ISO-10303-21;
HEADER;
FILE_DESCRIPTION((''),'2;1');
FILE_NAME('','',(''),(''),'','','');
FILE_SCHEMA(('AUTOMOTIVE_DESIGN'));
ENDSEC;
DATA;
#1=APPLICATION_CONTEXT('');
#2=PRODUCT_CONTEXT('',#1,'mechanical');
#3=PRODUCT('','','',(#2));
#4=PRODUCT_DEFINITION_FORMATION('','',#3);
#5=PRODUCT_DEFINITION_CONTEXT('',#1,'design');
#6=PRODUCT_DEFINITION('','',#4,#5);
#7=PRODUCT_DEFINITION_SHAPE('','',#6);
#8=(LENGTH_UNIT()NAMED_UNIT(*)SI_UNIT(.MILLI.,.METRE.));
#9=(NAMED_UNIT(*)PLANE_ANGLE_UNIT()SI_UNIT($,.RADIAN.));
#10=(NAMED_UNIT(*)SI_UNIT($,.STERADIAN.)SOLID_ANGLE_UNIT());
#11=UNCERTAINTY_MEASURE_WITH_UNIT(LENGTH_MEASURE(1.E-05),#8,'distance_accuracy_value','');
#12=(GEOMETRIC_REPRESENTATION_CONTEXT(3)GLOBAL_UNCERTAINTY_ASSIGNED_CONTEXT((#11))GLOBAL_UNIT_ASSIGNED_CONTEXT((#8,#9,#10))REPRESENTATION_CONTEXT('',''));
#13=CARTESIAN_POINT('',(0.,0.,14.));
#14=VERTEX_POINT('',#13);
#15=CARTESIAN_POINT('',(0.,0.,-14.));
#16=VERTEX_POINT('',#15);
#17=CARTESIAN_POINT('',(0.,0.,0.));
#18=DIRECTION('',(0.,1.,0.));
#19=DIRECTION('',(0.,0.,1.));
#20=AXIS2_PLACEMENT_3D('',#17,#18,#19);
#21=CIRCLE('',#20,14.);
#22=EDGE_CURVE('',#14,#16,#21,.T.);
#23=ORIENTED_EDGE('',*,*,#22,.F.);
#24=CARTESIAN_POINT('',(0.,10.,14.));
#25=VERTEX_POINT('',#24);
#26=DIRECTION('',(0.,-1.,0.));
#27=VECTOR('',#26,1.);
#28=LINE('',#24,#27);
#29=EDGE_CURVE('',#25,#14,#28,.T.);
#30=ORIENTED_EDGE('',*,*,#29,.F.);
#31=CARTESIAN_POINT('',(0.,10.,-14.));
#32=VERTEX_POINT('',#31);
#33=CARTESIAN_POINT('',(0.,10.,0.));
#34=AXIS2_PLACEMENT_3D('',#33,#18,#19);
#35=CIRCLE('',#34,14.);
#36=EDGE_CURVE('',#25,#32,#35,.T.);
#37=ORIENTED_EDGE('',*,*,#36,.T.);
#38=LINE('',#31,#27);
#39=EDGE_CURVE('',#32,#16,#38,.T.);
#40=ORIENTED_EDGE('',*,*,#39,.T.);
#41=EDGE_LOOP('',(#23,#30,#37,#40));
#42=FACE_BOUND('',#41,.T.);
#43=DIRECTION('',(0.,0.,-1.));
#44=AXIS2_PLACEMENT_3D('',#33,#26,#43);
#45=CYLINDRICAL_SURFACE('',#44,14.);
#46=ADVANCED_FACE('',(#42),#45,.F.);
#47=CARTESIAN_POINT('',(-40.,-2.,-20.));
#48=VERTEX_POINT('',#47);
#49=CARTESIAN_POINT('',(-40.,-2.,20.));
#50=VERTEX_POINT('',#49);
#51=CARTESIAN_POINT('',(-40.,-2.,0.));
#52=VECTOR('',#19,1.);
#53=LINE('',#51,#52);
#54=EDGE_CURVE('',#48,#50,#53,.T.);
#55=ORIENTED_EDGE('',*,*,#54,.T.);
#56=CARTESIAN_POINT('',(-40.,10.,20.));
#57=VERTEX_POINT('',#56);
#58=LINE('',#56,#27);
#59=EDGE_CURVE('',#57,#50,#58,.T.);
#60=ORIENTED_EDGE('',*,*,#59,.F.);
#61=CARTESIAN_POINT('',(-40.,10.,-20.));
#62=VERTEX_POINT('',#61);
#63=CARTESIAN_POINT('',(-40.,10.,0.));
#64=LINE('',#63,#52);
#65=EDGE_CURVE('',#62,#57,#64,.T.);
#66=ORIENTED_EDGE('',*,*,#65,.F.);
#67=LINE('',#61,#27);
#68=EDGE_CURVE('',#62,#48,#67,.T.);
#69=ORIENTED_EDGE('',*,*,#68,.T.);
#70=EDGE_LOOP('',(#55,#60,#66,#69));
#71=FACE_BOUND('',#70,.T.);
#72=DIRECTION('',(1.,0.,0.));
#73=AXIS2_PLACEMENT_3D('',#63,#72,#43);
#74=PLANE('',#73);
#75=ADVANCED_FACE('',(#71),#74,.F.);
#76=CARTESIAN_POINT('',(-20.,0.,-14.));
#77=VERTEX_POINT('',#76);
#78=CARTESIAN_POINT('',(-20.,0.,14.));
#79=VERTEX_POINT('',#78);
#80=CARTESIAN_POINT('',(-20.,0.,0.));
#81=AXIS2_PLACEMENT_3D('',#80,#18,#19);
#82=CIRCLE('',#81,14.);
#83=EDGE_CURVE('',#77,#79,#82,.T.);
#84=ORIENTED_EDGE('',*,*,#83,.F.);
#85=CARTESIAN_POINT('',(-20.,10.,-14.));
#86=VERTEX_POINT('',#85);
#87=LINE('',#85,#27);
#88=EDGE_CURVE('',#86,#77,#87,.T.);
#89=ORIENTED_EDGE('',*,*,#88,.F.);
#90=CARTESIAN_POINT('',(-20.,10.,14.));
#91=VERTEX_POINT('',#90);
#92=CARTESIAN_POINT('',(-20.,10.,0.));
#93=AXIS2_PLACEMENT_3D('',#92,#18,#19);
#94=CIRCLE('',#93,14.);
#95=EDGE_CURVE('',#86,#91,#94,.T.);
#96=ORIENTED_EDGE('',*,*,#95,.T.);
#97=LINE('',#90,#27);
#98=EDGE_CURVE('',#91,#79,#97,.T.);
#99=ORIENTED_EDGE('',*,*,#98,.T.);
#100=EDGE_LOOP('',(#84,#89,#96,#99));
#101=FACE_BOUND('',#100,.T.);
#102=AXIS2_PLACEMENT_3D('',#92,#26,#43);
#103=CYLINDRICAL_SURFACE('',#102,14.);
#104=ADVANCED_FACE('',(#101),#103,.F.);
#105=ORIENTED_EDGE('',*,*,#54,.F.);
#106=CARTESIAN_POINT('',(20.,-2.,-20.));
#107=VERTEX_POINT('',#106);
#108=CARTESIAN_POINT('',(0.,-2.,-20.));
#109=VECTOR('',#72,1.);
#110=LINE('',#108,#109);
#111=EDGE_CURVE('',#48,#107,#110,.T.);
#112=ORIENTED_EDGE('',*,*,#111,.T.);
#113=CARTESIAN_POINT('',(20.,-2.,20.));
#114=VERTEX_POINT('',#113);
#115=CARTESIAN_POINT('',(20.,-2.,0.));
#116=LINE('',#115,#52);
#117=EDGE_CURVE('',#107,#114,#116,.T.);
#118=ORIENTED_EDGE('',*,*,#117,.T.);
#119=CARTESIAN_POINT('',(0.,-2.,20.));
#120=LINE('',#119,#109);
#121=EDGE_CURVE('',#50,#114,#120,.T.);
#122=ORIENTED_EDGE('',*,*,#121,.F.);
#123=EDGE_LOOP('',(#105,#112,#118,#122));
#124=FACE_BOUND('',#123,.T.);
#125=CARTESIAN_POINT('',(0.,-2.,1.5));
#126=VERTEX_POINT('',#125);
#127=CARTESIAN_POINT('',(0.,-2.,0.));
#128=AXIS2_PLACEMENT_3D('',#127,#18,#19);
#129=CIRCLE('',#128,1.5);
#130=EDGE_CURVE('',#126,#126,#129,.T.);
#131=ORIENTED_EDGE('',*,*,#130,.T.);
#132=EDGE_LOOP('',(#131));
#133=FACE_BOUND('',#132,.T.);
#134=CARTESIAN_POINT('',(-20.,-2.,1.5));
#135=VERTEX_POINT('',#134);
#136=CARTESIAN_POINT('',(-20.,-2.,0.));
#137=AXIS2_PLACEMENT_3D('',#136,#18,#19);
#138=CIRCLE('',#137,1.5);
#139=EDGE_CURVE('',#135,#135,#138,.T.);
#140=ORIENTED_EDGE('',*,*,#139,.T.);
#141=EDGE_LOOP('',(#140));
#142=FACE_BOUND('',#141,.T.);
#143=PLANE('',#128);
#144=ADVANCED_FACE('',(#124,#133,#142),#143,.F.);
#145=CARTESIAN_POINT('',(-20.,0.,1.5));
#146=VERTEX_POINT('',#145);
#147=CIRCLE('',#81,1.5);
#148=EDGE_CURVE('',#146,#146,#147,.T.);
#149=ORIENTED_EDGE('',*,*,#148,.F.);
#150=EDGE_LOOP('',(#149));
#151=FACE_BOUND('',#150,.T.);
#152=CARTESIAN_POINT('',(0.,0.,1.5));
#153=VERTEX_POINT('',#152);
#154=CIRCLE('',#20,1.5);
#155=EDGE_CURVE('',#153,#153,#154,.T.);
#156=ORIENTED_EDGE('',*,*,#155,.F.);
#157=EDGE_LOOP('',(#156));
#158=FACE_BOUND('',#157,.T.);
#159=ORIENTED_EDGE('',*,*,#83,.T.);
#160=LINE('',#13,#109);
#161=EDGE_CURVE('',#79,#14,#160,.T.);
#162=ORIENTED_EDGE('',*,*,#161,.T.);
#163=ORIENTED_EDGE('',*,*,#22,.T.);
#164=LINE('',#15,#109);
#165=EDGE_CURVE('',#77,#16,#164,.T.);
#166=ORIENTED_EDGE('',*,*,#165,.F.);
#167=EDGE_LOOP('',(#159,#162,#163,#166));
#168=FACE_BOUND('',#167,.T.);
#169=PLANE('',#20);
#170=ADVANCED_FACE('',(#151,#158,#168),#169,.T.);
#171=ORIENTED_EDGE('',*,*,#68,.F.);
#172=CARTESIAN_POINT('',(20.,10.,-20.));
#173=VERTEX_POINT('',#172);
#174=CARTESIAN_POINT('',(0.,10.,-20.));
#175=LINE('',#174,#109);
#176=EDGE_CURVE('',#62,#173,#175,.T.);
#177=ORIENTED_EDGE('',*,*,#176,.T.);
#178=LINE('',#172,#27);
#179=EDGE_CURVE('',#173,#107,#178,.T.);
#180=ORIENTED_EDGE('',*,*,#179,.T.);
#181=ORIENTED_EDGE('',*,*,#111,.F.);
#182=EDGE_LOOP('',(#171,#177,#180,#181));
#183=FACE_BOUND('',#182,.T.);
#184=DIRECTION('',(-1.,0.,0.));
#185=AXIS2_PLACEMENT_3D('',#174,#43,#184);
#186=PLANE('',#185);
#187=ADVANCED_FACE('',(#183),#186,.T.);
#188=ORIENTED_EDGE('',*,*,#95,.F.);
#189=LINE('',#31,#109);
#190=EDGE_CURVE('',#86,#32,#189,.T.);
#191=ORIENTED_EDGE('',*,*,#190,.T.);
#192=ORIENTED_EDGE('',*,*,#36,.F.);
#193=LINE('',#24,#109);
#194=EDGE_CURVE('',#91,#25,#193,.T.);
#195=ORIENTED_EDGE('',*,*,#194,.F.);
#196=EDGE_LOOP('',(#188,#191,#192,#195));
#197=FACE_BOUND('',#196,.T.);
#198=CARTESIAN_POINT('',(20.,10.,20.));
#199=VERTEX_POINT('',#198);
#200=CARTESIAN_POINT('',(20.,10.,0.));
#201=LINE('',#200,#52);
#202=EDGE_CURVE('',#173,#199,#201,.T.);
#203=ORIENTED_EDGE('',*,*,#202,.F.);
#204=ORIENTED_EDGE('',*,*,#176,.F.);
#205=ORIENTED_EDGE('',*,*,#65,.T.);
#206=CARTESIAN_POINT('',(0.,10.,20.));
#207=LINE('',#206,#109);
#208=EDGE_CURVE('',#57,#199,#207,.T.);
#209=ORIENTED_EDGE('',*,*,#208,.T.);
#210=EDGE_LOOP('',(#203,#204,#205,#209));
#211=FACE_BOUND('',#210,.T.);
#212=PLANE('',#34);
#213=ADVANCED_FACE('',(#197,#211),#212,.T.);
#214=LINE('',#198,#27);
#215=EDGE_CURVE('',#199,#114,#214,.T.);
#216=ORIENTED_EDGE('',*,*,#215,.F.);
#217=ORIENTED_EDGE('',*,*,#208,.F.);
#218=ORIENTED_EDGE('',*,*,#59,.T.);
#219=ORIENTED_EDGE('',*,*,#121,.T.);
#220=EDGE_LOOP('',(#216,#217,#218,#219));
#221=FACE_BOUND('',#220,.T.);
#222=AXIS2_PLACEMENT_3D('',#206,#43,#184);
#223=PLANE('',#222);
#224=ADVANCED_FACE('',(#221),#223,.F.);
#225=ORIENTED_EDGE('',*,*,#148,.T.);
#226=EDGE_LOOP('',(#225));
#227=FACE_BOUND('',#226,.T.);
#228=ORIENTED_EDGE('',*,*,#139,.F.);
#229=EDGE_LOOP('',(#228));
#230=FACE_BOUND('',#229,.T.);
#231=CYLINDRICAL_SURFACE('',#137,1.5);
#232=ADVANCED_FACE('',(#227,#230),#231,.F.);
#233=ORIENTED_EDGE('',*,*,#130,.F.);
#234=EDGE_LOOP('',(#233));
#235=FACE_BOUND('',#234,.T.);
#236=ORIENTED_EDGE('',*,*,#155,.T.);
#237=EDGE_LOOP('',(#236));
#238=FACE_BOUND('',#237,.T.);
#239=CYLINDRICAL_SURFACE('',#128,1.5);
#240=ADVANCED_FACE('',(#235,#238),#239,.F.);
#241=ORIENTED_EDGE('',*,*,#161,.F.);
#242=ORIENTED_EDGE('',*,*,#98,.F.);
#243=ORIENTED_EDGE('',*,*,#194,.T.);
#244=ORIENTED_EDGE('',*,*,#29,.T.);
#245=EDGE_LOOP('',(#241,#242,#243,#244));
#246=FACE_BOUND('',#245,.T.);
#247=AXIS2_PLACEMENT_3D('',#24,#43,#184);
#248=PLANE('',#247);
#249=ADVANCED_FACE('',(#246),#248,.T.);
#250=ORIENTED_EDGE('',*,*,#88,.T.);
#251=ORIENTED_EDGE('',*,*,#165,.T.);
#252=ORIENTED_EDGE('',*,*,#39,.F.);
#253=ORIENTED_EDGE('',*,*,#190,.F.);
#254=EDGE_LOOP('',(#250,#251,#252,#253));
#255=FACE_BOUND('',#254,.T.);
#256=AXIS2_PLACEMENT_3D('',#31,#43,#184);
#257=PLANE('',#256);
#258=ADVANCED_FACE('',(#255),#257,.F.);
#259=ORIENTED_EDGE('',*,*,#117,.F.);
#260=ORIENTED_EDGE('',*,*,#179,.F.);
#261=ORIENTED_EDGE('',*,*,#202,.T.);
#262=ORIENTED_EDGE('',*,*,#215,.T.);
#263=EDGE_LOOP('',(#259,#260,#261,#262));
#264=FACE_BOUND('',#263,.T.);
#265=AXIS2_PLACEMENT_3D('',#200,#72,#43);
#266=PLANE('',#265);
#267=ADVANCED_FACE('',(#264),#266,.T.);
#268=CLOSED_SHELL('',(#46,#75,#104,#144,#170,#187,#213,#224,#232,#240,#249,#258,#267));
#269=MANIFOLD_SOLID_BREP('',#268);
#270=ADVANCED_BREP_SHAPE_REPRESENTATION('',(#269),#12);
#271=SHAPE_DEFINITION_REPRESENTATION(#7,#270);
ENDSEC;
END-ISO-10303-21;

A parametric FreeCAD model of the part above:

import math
import FreeCAD as App
import Part
import Sketcher

doc = App.newDocument("Part")
body = doc.addObject("PartDesign::Body", "Body")

# Sketch on XZ plane
sketch1 = body.newObject("Sketcher::SketchObject", "Sketch")
sketch1.AttachmentSupport = (doc.getObject("XZ_Plane"), [""])
sketch1.MapMode = "FlatFace"
sketch1.addGeometry([
    Part.LineSegment(App.Vector(-40, -20, 0), App.Vector(-40, 20, 0)),  # 0
    Part.LineSegment(App.Vector(-40, 20, 0), App.Vector(20, 20, 0)),  # 1
    Part.LineSegment(App.Vector(20, 20, 0), App.Vector(20, -20, 0)),  # 2
    Part.LineSegment(App.Vector(20, -20, 0), App.Vector(-40, -20, 0)),  # 3
    Part.ArcOfCircle(Part.Circle(App.Vector(-20, 0, 0), App.Vector(0, 0, 1), 14), math.radians(90), math.radians(270)),  # 4
    Part.LineSegment(App.Vector(-20, -14, 0), App.Vector(0, -14, 0)),  # 5
    Part.ArcOfCircle(Part.Circle(App.Vector(0, 0, 0), App.Vector(0, 0, 1), 14), math.radians(-90), math.radians(90)),  # 6
    Part.LineSegment(App.Vector(0, 14, 0), App.Vector(-20, 14, 0)),  # 7
], False)
sketch1.addConstraint([
    Sketcher.Constraint("Coincident", 0, 2, 1, 1),
    Sketcher.Constraint("Coincident", 1, 2, 2, 1),
    Sketcher.Constraint("Coincident", 2, 2, 3, 1),
    Sketcher.Constraint("Coincident", 3, 2, 0, 1),
    Sketcher.Constraint("Tangent", 4, 2, 5, 1),
    Sketcher.Constraint("Tangent", 5, 2, 6, 1),
    Sketcher.Constraint("Tangent", 6, 2, 7, 1),
    Sketcher.Constraint("Tangent", 7, 2, 4, 1),
    Sketcher.Constraint("Vertical", 0),
    Sketcher.Constraint("Horizontal", 1),
    Sketcher.Constraint("Vertical", 2),
    Sketcher.Constraint("Horizontal", 3),
    Sketcher.Constraint("Horizontal", 5),
    Sketcher.Constraint("Horizontal", 7),
    Sketcher.Constraint("Coincident", 6, 3, -1, 1),
    Sketcher.Constraint("Radius", 4, 14.0),
    Sketcher.Constraint("DistanceX", 1, 1, 1, 2, 60.0),
    Sketcher.Constraint("DistanceX", 5, 1, 5, 2, 20.0),
    Sketcher.Constraint("DistanceY", 0, 1, 0, 2, 40.0),
    Sketcher.Constraint("DistanceX", 0, 2, -1, 1, 40.0),
    Sketcher.Constraint("DistanceY", -1, 1, 0, 2, 20.0),
])
pad1 = body.newObject("PartDesign::Pad", "Pad")
pad1.Profile = sketch1
pad1.Length = 10
pad1.Reversed = True

# Sketch on XZ plane
sketch2 = body.newObject("Sketcher::SketchObject", "Sketch001")
sketch2.AttachmentSupport = (doc.getObject("XZ_Plane"), [""])
sketch2.MapMode = "FlatFace"
sketch2.addGeometry([
    Part.LineSegment(App.Vector(-40, -20, 0), App.Vector(-40, 20, 0)),  # 0
    Part.LineSegment(App.Vector(-40, 20, 0), App.Vector(20, 20, 0)),  # 1
    Part.LineSegment(App.Vector(20, 20, 0), App.Vector(20, -20, 0)),  # 2
    Part.LineSegment(App.Vector(20, -20, 0), App.Vector(-40, -20, 0)),  # 3
    Part.Circle(App.Vector(-20, 0, 0), App.Vector(0, 0, 1), 1.5),  # 4
    Part.Circle(App.Vector(0, 0, 0), App.Vector(0, 0, 1), 1.5),  # 5
], False)
sketch2.addConstraint([
    Sketcher.Constraint("Coincident", 0, 2, 1, 1),
    Sketcher.Constraint("Coincident", 1, 2, 2, 1),
    Sketcher.Constraint("Coincident", 2, 2, 3, 1),
    Sketcher.Constraint("Coincident", 3, 2, 0, 1),
    Sketcher.Constraint("Vertical", 0),
    Sketcher.Constraint("Horizontal", 1),
    Sketcher.Constraint("Vertical", 2),
    Sketcher.Constraint("Horizontal", 3),
    Sketcher.Constraint("Coincident", 5, 3, -1, 1),
    Sketcher.Constraint("Equal", 4, 5),
    Sketcher.Constraint("PointOnObject", 4, 3, -1),
    Sketcher.Constraint("Diameter", 4, 3.0),
    Sketcher.Constraint("DistanceX", 1, 1, 1, 2, 60.0),
    Sketcher.Constraint("DistanceY", 0, 1, 0, 2, 40.0),
    Sketcher.Constraint("DistanceX", 4, 3, -1, 1, 20.0),
    Sketcher.Constraint("DistanceX", 0, 2, -1, 1, 40.0),
    Sketcher.Constraint("DistanceY", -1, 1, 0, 2, 20.0),
])
pad2 = body.newObject("PartDesign::Pad", "Pad001")
pad2.Profile = sketch2
pad2.Length = 2

doc.recompute()
